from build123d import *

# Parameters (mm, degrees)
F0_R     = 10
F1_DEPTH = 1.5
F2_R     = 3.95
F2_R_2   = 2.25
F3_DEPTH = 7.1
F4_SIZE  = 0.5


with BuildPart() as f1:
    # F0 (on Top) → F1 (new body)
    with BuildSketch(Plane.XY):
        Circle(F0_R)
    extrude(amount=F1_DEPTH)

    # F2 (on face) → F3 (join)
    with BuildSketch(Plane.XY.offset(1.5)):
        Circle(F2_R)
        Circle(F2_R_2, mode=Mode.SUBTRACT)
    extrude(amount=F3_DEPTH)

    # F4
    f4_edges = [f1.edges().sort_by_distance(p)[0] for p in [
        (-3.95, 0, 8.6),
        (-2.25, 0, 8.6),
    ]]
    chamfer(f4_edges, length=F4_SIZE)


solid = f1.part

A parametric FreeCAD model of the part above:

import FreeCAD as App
import Part
import Sketcher
from FreeCAD import Vector


def edges_at(feature, points):
    """Names of the edges that pass closest to the given points."""
    edges = feature.Shape.Edges
    near = lambda p: min(range(len(edges)), key=lambda i: edges[i].distToShape(Part.Vertex(*p))[0])
    return sorted({f"Edge{near(p) + 1}" for p in points})

doc = App.newDocument("Part")
body = doc.addObject("PartDesign::Body", "Body")

# Sketch on XY plane
sketch1 = doc.addObject("Sketcher::SketchObject", "Sketch")
body.addObject(sketch1)
sketch1.AttachmentSupport = (doc.XY_Plane, [""])
sketch1.MapMode = "FlatFace"
sketch1.addGeometry(Part.Circle(Vector(0, 0, 0), Vector(0, 0, 1), 10), False)
sketch1.addConstraint(Sketcher.Constraint("Coincident", 0, 3, -1, 1))
sketch1.addConstraint(Sketcher.Constraint("Diameter", 0, 20.0))
pad1 = doc.addObject("PartDesign::Pad", "Pad")
body.addObject(pad1)
pad1.Profile = sketch1
pad1.Length = 1.5

# Sketch on XY plane
sketch2 = doc.addObject("Sketcher::SketchObject", "Sketch001")
body.addObject(sketch2)
sketch2.AttachmentSupport = (doc.XY_Plane, [""])
sketch2.MapMode = "FlatFace"
sketch2.AttachmentOffset = App.Placement(Vector(0, 0, 1.5), App.Rotation())
sketch2.addGeometry(Part.Circle(Vector(0, 0, 0), Vector(0, 0, 1), 4), False)
sketch2.addGeometry(Part.Circle(Vector(0, 0, 0), Vector(0, 0, 1), 2.2), False)
sketch2.addConstraint(Sketcher.Constraint("Coincident", 0, 3, -1, 1))
sketch2.addConstraint(Sketcher.Constraint("Coincident", 1, 3, -1, 1))
sketch2.addConstraint(Sketcher.Constraint("Diameter", 0, 7.9))
sketch2.addConstraint(Sketcher.Constraint("Diameter", 1, 4.5))
pad2 = doc.addObject("PartDesign::Pad", "Pad001")
body.addObject(pad2)
pad2.Profile = sketch2
pad2.Length = 7.1
doc.recompute()

chamfer = doc.addObject("PartDesign::Chamfer", "Chamfer")
body.addObject(chamfer)
chamfer.Base = (pad2, edges_at(pad2, [(-3.95, 0, 8.6), (-2.25, 0, 8.6)]))
chamfer.Size = 0.5

doc.recompute()
